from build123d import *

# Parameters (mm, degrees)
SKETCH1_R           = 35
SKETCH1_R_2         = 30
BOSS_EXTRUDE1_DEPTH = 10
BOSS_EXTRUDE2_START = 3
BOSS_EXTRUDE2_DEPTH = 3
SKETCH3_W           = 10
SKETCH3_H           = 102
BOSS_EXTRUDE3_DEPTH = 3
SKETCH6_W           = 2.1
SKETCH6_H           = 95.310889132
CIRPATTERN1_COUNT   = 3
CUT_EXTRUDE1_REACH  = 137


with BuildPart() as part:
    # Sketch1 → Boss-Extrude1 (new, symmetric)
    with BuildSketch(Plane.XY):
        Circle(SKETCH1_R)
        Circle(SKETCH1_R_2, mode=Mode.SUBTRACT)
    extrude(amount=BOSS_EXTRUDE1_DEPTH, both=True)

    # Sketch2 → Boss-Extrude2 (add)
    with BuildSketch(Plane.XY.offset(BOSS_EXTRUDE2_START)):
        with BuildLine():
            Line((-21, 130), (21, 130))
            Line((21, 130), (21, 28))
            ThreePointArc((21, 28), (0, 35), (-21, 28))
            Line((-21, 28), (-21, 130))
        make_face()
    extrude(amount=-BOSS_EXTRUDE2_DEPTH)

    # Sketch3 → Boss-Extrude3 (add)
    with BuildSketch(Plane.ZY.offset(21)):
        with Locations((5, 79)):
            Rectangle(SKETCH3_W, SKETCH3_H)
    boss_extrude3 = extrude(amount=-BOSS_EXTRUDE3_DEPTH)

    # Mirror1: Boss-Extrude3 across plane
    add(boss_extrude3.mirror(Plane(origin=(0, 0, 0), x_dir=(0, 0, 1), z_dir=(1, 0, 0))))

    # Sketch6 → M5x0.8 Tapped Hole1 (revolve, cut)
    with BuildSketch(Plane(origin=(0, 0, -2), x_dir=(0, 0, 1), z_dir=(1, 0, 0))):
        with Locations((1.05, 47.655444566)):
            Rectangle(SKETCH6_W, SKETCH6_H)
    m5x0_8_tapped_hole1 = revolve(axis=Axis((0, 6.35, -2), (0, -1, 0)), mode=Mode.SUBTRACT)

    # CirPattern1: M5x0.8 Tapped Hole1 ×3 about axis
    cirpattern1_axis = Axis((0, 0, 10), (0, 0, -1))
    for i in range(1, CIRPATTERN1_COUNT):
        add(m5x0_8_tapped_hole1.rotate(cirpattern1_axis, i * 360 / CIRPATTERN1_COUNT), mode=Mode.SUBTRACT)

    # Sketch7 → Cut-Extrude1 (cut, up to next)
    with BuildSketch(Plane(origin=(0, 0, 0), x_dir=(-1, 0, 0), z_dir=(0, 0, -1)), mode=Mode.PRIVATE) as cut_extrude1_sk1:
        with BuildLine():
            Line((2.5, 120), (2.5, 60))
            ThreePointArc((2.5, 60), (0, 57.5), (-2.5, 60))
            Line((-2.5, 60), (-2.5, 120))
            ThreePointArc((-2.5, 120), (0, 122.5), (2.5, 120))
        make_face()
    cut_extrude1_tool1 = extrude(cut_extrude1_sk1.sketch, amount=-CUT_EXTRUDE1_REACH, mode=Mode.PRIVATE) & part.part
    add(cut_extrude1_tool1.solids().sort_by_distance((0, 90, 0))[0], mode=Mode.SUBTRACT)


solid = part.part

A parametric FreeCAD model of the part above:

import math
import FreeCAD as App
import Part
import Sketcher
from FreeCAD import Vector
Q = App.Units.Quantity

doc = App.newDocument("Part")
params = doc.addObject("Spreadsheet::Sheet", "Params")
for row, (alias, value) in enumerate([
    ("sketch1_diameter", "70 mm"),
    ("sketch1_diameter2", "60 mm"),
    ("pad1_length", "20 mm"),
    ("sketch2_radius", "35 mm"),
    ("sketch2_width", "42 mm"),
    ("sketch2_height", "102 mm"),
    ("pad2_length", "3 mm"),
    ("sketch3_width", "102 mm"),
    ("sketch3_height", "10 mm"),
    ("pad3_length", "3 mm"),
    ("sketch4_height", "2.1 mm"),
    ("groove_angle", "360 deg"),
    ("sketch5_radius", "2.5 mm"),
    ("sketch5_height", "60 mm"),
], start=1):
    params.set(f"A{row}", alias)
    params.set(f"B{row}", "=" + value)
    params.setAlias(f"B{row}", alias)

body = doc.addObject("PartDesign::Body", "Body")

# Sketch on XY plane
sketch1 = doc.addObject("Sketcher::SketchObject", "Sketch")
body.addObject(sketch1)
sketch1.AttachmentSupport = (doc.XY_Plane, [""])
sketch1.MapMode = "FlatFace"
sketch1.addGeometry(Part.Circle(Vector(0, 0, 0), Vector(0, 0, 1), 35), False)
sketch1.addGeometry(Part.Circle(Vector(0, 0, 0), Vector(0, 0, 1), 30), False)
sketch1.addConstraint(Sketcher.Constraint("Coincident", 0, 3, -1, 1))
sketch1.addConstraint(Sketcher.Constraint("Coincident", 1, 3, -1, 1))
sketch1.addConstraint(Sketcher.Constraint("Diameter", 0, Q("70 mm")))
sketch1.addConstraint(Sketcher.Constraint("Diameter", 1, Q("60 mm")))
sketch1.setExpression("Constraints[2]", "Params.sketch1_diameter")
sketch1.setExpression("Constraints[3]", "Params.sketch1_diameter2")
pad1 = doc.addObject("PartDesign::Pad", "Pad")
body.addObject(pad1)
pad1.Profile = sketch1
pad1.setExpression("Length", "Params.pad1_length")
pad1.Midplane = True

# Sketch on XY plane
sketch2 = doc.addObject("Sketcher::SketchObject", "Sketch001")
body.addObject(sketch2)
sketch2.AttachmentSupport = (doc.XY_Plane, [""])
sketch2.MapMode = "FlatFace"
sketch2.AttachmentOffset = App.Placement(Vector(0, 0, 3), App.Rotation())
sketch2.addGeometry(Part.LineSegment(Vector(21, 130, 0), Vector(-21, 130, 0)), False)
sketch2.addGeometry(Part.LineSegment(Vector(-21, 130, 0), Vector(-21, 28, 0)), False)
sketch2.addGeometry(Part.ArcOfCircle(Part.Circle(Vector(0, 0, 0), Vector(0, 0, 1), 35), math.radians(53), math.radians(127)), False)
sketch2.addGeometry(Part.LineSegment(Vector(21, 28, 0), Vector(21, 130, 0)), False)
sketch2.addConstraint(Sketcher.Constraint("Coincident", 0, 2, 1, 1))
sketch2.addConstraint(Sketcher.Constraint("Coincident", 1, 2, 2, 2))
sketch2.addConstraint(Sketcher.Constraint("Coincident", 2, 1, 3, 1))
sketch2.addConstraint(Sketcher.Constraint("Coincident", 3, 2, 0, 1))
sketch2.addConstraint(Sketcher.Constraint("Horizontal", 0))
sketch2.addConstraint(Sketcher.Constraint("Vertical", 1))
sketch2.addConstraint(Sketcher.Constraint("Vertical", 3))
sketch2.addConstraint(Sketcher.Constraint("Coincident", 2, 3, -1, 1))
sketch2.addConstraint(Sketcher.Constraint("Horizontal", 1, 2, 2, 1))
sketch2.addConstraint(Sketcher.Constraint("Radius", 2, Q("35 mm")))
sketch2.addConstraint(Sketcher.Constraint("DistanceX", 0, 2, 0, 1, Q("42 mm")))
sketch2.addConstraint(Sketcher.Constraint("DistanceY", 1, 2, 1, 1, Q("102 mm")))
sketch2.setExpression("Constraints[9]", "Params.sketch2_radius")
sketch2.setExpression("Constraints[10]", "Params.sketch2_width")
sketch2.setExpression("Constraints[11]", "Params.sketch2_height")
pad2 = doc.addObject("PartDesign::Pad", "Pad001")
body.addObject(pad2)
pad2.Profile = sketch2
pad2.setExpression("Length", "Params.pad2_length")
pad2.Reversed = True

# Sketch on YZ plane
sketch3 = doc.addObject("Sketcher::SketchObject", "Sketch002")
body.addObject(sketch3)
sketch3.AttachmentSupport = (doc.YZ_Plane, [""])
sketch3.MapMode = "FlatFace"
sketch3.AttachmentOffset = App.Placement(Vector(0, 0, -21), App.Rotation())
sketch3.addGeometry(Part.LineSegment(Vector(130, 0, 0), Vector(28, 0, 0)), False)
sketch3.addGeometry(Part.LineSegment(Vector(28, 0, 0), Vector(28, 10, 0)), False)
sketch3.addGeometry(Part.LineSegment(Vector(28, 10, 0), Vector(130, 10, 0)), False)
sketch3.addGeometry(Part.LineSegment(Vector(130, 10, 0), Vector(130, 0, 0)), False)
sketch3.addConstraint(Sketcher.Constraint("Coincident", 0, 2, 1, 1))
sketch3.addConstraint(Sketcher.Constraint("Coincident", 1, 2, 2, 1))
sketch3.addConstraint(Sketcher.Constraint("Coincident", 2, 2, 3, 1))
sketch3.addConstraint(Sketcher.Constraint("Coincident", 3, 2, 0, 1))
sketch3.addConstraint(Sketcher.Constraint("Horizontal", 0))
sketch3.addConstraint(Sketcher.Constraint("Vertical", 1))
sketch3.addConstraint(Sketcher.Constraint("Horizontal", 2))
sketch3.addConstraint(Sketcher.Constraint("Vertical", 3))
sketch3.addConstraint(Sketcher.Constraint("PointOnObject", 0, 2, -1))
sketch3.addConstraint(Sketcher.Constraint("DistanceX", 0, 2, 0, 1, Q("102 mm")))
sketch3.addConstraint(Sketcher.Constraint("DistanceY", 1, 1, 1, 2, Q("10 mm")))
sketch3.addConstraint(Sketcher.Constraint("DistanceX", -1, 1, 0, 2, Q("28 mm")))
sketch3.setExpression("Constraints[9]", "Params.sketch3_width")
sketch3.setExpression("Constraints[10]", "Params.sketch3_height")
pad3 = doc.addObject("PartDesign::Pad", "Pad002")
body.addObject(pad3)
pad3.Profile = sketch3
pad3.setExpression("Length", "Params.pad3_length")
doc.recompute()

mirrored = doc.addObject("PartDesign::Mirrored", "Mirrored")
body.addObject(mirrored)
mirrored.Originals = [pad3]
mirrored.MirrorPlane = (doc.YZ_Plane, [""])
body.Tip = mirrored

# Sketch on YZ plane
sketch4 = doc.addObject("Sketcher::SketchObject", "Sketch003")
body.addObject(sketch4)
sketch4.AttachmentSupport = (doc.YZ_Plane, [""])
sketch4.MapMode = "FlatFace"
sketch4.addGeometry(Part.LineSegment(Vector(-95.3, -2, 0), Vector(0, -2, 0)), False)
sketch4.addGeometry(Part.LineSegment(Vector(0, -2, 0), Vector(0, 0.1, 0)), False)
sketch4.addGeometry(Part.LineSegment(Vector(0, 0.1, 0), Vector(-95.3, 0.1, 0)), False)
sketch4.addGeometry(Part.LineSegment(Vector(-95.3, 0.1, 0), Vector(-95.3, -2, 0)), False)
sketch4.addGeometry(Part.LineSegment(Vector(0, -2, 0), Vector(-95.3, -2, 0)), True)  # axis
sketch4.addConstraint(Sketcher.Constraint("Coincident", 0, 2, 1, 1))
sketch4.addConstraint(Sketcher.Constraint("Coincident", 1, 2, 2, 1))
sketch4.addConstraint(Sketcher.Constraint("Coincident", 2, 2, 3, 1))
sketch4.addConstraint(Sketcher.Constraint("Coincident", 3, 2, 0, 1))
sketch4.addConstraint(Sketcher.Constraint("Horizontal", 0))
sketch4.addConstraint(Sketcher.Constraint("Vertical", 1))
sketch4.addConstraint(Sketcher.Constraint("Horizontal", 2))
sketch4.addConstraint(Sketcher.Constraint("Vertical", 3))
sketch4.addConstraint(Sketcher.Constraint("Horizontal", 4))
sketch4.addConstraint(Sketcher.Constraint("Coincident", 4, 1, 0, 2))
sketch4.addConstraint(Sketcher.Constraint("PointOnObject", 0, 2, -2))
sketch4.addConstraint(Sketcher.Constraint("Vertical", 2, 2, 4, 2))
sketch4.addConstraint(Sketcher.Constraint("DistanceY", 1, 1, 1, 2, Q("2.1 mm")))
sketch4.addConstraint(Sketcher.Constraint("DistanceY", 0, 2, -1, 1, Q("2 mm")))
sketch4.addConstraint(Sketcher.Constraint("DistanceX", 0, 1, 0, 2, Q("95.310889 mm")))
sketch4.setExpression("Constraints[12]", "Params.sketch4_height")
groove = doc.addObject("PartDesign::Groove", "Groove")
body.addObject(groove)
groove.Profile = sketch4
groove.ReferenceAxis = (sketch4, ["Axis0"])
groove.setExpression("Angle", "Params.groove_angle")
doc.recompute()

polarpattern = doc.addObject("PartDesign::PolarPattern", "PolarPattern")
body.addObject(polarpattern)
polarpattern.Originals = [groove]
polarpattern.Axis = (doc.Z_Axis, [""])
polarpattern.Angle = 360
polarpattern.Occurrences = 3
body.Tip = polarpattern

# Sketch on XY plane
sketch5 = doc.addObject("Sketcher::SketchObject", "Sketch004")
body.addObject(sketch5)
sketch5.AttachmentSupport = (doc.XY_Plane, [""])
sketch5.MapMode = "FlatFace"
sketch5.addGeometry(Part.LineSegment(Vector(-2.5, 60, 0), Vector(-2.5, 120, 0)), False)
sketch5.addGeometry(Part.ArcOfCircle(Part.Circle(Vector(0, 120, 0), Vector(0, 0, 1), 2.5), math.radians(0), math.radians(180)), False)
sketch5.addGeometry(Part.LineSegment(Vector(2.5, 120, 0), Vector(2.5, 60, 0)), False)
sketch5.addGeometry(Part.ArcOfCircle(Part.Circle(Vector(0, 60, 0), Vector(0, 0, 1), 2.5), math.radians(180), math.radians(360)), False)
sketch5.addConstraint(Sketcher.Constraint("Tangent", 0, 2, 1, 2))
sketch5.addConstraint(Sketcher.Constraint("Tangent", 1, 1, 2, 1))
sketch5.addConstraint(Sketcher.Constraint("Tangent", 2, 2, 3, 2))
sketch5.addConstraint(Sketcher.Constraint("Tangent", 3, 1, 0, 1))
sketch5.addConstraint(Sketcher.Constraint("Vertical", 0))
sketch5.addConstraint(Sketcher.Constraint("Vertical", 2))
sketch5.addConstraint(Sketcher.Constraint("PointOnObject", 1, 3, -2))
sketch5.addConstraint(Sketcher.Constraint("Radius", 1, Q("2.5 mm")))
sketch5.addConstraint(Sketcher.Constraint("DistanceY", 0, 1, 0, 2, Q("60 mm")))
sketch5.addConstraint(Sketcher.Constraint("DistanceY", -1, 1, 1, 3, Q("120 mm")))
sketch5.setExpression("Constraints[7]", "Params.sketch5_radius")
sketch5.setExpression("Constraints[8]", "Params.sketch5_height")
pocket1 = doc.addObject("PartDesign::Pocket", "Pocket")
body.addObject(pocket1)
pocket1.Profile = sketch5
pocket1.Type = "UpToFirst"
pocket1.Reversed = True

doc.recompute()
